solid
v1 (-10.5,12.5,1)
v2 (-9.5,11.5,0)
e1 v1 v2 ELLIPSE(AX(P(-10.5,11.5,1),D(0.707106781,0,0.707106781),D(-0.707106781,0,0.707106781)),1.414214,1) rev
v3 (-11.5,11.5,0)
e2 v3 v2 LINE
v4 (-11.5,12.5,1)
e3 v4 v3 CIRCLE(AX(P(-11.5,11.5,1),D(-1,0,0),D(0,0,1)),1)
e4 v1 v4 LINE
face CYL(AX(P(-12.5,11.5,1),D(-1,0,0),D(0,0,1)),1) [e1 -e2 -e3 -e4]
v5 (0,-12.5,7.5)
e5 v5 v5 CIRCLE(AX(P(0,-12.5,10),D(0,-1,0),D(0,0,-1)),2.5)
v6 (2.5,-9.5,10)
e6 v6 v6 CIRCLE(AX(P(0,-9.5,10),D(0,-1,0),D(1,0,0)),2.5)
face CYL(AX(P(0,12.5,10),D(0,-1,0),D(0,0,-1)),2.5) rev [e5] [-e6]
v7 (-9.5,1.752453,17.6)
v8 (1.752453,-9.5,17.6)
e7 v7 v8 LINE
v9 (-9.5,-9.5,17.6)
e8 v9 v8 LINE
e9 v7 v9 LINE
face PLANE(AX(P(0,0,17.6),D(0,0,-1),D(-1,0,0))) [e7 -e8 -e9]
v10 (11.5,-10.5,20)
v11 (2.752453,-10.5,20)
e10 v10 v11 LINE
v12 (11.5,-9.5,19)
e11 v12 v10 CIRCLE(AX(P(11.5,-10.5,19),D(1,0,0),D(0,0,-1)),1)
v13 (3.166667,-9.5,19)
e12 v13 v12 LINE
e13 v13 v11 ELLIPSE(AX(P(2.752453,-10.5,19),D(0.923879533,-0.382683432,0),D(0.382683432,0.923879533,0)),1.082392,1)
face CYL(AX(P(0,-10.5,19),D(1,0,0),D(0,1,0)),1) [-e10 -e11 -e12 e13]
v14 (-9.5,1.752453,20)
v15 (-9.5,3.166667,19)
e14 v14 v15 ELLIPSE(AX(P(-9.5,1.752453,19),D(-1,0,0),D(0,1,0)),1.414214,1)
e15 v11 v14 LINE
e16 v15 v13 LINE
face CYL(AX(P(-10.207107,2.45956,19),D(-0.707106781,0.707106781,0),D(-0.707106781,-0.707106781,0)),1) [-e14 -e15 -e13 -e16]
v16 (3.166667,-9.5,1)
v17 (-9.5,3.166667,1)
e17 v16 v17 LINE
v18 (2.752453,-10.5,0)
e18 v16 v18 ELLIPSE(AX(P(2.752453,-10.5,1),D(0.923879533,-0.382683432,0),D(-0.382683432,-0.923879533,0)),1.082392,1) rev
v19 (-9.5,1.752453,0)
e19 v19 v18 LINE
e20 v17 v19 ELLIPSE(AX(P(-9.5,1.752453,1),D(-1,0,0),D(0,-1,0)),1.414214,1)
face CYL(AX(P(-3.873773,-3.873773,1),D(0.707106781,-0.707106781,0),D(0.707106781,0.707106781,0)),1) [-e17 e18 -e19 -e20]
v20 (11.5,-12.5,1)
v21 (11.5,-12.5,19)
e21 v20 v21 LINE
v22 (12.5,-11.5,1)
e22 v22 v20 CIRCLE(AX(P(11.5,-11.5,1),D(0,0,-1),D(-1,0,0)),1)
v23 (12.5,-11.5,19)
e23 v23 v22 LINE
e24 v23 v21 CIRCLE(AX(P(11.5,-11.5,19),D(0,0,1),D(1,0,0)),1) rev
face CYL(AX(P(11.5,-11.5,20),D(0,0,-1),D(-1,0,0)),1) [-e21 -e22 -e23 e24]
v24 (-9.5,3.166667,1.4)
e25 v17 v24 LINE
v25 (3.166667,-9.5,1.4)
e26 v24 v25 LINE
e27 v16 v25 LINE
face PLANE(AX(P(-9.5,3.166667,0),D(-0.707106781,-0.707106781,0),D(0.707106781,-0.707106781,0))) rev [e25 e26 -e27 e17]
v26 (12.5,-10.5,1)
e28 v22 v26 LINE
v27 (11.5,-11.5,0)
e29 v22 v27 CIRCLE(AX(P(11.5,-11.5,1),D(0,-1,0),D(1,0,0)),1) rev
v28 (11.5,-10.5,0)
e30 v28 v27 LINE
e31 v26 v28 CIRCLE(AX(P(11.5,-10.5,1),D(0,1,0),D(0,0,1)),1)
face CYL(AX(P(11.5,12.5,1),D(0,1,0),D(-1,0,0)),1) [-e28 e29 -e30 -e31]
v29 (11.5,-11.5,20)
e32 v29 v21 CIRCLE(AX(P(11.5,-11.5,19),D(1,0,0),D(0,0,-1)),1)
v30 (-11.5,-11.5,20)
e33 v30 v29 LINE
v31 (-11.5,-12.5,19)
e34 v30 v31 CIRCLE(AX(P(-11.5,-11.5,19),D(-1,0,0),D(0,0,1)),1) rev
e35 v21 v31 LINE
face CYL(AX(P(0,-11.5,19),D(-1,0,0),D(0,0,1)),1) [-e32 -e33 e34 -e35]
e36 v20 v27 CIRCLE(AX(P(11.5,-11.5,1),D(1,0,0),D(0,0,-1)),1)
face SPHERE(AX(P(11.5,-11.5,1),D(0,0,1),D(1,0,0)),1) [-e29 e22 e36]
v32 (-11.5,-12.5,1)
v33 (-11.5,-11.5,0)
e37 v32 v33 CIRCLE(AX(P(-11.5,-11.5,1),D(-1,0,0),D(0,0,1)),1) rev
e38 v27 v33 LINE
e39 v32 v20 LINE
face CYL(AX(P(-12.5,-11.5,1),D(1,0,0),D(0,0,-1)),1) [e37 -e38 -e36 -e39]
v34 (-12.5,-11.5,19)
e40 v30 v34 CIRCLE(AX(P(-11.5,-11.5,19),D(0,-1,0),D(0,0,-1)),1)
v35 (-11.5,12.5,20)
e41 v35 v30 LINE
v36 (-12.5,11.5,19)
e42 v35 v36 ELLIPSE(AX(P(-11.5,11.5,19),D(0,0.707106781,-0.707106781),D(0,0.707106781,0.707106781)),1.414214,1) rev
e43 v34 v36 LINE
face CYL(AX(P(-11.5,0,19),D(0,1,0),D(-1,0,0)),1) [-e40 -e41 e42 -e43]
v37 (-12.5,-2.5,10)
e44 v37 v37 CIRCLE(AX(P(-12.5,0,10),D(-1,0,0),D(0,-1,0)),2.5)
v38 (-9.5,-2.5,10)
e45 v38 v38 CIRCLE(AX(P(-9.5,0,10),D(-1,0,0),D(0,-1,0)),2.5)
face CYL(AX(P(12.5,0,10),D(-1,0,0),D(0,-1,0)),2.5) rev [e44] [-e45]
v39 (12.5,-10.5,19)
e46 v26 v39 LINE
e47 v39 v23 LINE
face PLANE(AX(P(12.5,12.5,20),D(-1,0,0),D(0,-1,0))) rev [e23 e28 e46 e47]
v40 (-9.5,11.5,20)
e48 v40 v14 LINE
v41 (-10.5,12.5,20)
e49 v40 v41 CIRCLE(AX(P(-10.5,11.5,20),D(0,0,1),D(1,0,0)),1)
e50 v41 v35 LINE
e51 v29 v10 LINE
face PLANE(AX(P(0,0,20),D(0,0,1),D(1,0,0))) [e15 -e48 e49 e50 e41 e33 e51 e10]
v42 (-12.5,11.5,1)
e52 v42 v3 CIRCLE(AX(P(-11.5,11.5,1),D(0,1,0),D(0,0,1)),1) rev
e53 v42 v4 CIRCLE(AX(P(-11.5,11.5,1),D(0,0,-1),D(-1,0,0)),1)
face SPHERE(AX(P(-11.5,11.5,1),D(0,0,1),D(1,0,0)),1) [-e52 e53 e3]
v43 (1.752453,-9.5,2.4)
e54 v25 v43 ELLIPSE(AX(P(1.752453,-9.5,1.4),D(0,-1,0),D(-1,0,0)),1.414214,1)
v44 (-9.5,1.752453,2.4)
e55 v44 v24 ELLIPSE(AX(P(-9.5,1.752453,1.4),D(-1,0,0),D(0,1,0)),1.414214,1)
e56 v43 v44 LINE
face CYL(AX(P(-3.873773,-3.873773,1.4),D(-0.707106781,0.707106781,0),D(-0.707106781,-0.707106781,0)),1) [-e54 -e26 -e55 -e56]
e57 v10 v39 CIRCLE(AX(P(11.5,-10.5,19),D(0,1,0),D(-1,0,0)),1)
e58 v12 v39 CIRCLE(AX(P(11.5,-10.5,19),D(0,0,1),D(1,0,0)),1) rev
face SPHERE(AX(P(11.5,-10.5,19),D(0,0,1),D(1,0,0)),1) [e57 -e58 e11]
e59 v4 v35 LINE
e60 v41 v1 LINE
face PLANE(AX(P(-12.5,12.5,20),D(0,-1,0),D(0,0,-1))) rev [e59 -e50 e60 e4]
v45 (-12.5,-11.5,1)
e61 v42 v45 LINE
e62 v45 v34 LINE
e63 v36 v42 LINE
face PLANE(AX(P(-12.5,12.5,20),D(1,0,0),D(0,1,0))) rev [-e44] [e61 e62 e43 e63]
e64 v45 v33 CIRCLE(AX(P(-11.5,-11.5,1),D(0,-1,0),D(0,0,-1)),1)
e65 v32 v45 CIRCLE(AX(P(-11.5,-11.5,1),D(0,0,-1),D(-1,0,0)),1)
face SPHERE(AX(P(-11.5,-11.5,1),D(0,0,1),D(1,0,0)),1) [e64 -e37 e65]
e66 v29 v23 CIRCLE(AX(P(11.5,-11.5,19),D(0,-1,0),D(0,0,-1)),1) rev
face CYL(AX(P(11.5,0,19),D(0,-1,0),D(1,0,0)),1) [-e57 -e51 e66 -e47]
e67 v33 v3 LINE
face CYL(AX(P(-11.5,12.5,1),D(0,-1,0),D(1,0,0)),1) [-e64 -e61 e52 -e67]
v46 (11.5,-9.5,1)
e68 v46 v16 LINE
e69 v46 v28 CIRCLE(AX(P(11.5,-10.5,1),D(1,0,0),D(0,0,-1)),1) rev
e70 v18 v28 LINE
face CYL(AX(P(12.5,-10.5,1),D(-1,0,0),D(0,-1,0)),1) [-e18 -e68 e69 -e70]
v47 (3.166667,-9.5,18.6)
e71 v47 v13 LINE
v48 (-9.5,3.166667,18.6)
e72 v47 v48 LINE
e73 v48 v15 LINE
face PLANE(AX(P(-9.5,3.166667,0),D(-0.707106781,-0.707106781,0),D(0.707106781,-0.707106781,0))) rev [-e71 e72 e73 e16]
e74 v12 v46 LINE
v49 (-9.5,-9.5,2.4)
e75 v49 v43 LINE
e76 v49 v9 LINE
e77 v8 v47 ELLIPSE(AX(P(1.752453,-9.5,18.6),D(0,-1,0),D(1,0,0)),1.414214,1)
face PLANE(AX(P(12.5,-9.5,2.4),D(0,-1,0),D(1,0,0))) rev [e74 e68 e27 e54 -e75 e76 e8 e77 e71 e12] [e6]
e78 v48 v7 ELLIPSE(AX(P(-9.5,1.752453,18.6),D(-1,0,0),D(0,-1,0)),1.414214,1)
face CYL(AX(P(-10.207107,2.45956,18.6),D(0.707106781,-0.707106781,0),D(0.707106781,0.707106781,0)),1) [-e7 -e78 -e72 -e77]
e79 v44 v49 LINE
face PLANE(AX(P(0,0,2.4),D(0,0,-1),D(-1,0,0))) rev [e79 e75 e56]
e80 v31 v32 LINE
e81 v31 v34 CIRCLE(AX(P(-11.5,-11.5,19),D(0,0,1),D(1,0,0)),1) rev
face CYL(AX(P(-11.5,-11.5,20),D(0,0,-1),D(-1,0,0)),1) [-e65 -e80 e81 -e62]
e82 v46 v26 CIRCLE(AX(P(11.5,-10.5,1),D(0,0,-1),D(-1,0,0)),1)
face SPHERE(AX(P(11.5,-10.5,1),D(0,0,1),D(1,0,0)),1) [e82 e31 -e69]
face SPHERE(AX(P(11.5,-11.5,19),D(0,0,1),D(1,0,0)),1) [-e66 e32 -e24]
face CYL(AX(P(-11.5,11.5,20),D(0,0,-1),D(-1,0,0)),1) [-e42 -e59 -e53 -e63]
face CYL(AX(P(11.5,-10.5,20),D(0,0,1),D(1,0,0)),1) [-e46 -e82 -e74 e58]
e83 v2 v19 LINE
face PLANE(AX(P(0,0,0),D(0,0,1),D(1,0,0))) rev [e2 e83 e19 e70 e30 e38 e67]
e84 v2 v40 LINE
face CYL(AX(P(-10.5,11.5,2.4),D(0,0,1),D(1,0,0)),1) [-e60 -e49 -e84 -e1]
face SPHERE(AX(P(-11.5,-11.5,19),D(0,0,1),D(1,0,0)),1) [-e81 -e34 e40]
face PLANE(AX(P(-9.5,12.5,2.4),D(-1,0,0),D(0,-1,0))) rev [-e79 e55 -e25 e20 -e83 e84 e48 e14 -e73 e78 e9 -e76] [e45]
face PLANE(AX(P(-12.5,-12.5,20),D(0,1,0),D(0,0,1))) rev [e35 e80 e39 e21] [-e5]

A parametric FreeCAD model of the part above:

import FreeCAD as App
import Part
import Sketcher


def edges_at(feature, points):
    """Names of the edges that pass closest to the given points."""
    edges = feature.Shape.Edges
    near = lambda p: min(range(len(edges)), key=lambda i: edges[i].distToShape(Part.Vertex(*p))[0])
    return sorted({f"Edge{near(p) + 1}" for p in points})


def add_polygon(sketch, points):
    """Adds a closed chain of lines whose ends are joined by coincident constraints."""
    first, n = sketch.GeometryCount, len(points)
    for a, b in zip(points, points[1:] + points[:1]):
        sketch.addGeometry(Part.LineSegment(App.Vector(*a, 0), App.Vector(*b, 0)), False)
    for i in range(n):
        sketch.addConstraint(Sketcher.Constraint("Coincident", first + i, 2, first + (i + 1) % n, 1))

doc = App.newDocument("Part")
params = doc.addObject("Spreadsheet::Sheet", "Params")
for row, (alias, value) in enumerate([
    ("sketch1_width", "25 mm"),
    ("pad1_length", "20 mm"),
    ("sketch2_width", "22 mm"),
    ("pocket1_length", "15.2 mm"),
    ("sketch3_width", "22 mm"),
    ("fillet_radius", "1 mm"),
    ("sketch4_diameter", "5 mm"),
    ("sketch5_diameter", "5 mm"),
], start=1):
    params.set(f"A{row}", alias)
    params.set(f"B{row}", "=" + value)
    params.setAlias(f"B{row}", alias)

body = doc.addObject("PartDesign::Body", "Body")

# Sketch on XY plane
sketch1 = doc.addObject("Sketcher::SketchObject", "Sketch")
body.addObject(sketch1)
sketch1.AttachmentSupport = (doc.XY_Plane, [""])
sketch1.MapMode = "FlatFace"
add_polygon(sketch1, [(-12, 12), (-12, -12), (12, -12), (12, 12)])  # lines 0-3
sketch1.addConstraint([
    Sketcher.Constraint("Vertical", 0),
    Sketcher.Constraint("Horizontal", 1),
    Sketcher.Constraint("Vertical", 2),
    Sketcher.Constraint("Horizontal", 3),
    Sketcher.Constraint("Symmetric", 0, 2, 2, 2, -1, 1),
    Sketcher.Constraint("Equal", 3, 0),
    Sketcher.Constraint("DistanceX", 1, 1, 1, 2, 25.0),
])
sketch1.setExpression("Constraints[10]", "Params.sketch1_width")
pad1 = doc.addObject("PartDesign::Pad", "Pad")
body.addObject(pad1)
pad1.Profile = sketch1
pad1.setExpression("Length", "Params.pad1_length")

# Sketch on XY plane
sketch2 = doc.addObject("Sketcher::SketchObject", "Sketch001")
body.addObject(sketch2)
sketch2.AttachmentSupport = (doc.XY_Plane, [""])
sketch2.MapMode = "FlatFace"
sketch2.AttachmentOffset = App.Placement(App.Vector(0, 0, 17.6), App.Rotation())
add_polygon(sketch2, [(-10, 12), (-10, -10), (12, -10), (12, 12)])  # lines 0-3
sketch2.addConstraint([
    Sketcher.Constraint("Vertical", 0),
    Sketcher.Constraint("Horizontal", 1),
    Sketcher.Constraint("Vertical", 2),
    Sketcher.Constraint("Horizontal", 3),
    Sketcher.Constraint("Equal", 3, 0),
    Sketcher.Constraint("DistanceX", 1, 1, 1, 2, 22.0),
    Sketcher.Constraint("DistanceX", 0, 2, -1, 1, 9.5),
    Sketcher.Constraint("DistanceY", 0, 2, -1, 1, 9.5),
])
sketch2.setExpression("Constraints[9]", "Params.sketch2_width")
pocket1 = doc.addObject("PartDesign::Pocket", "Pocket")
body.addObject(pocket1)
pocket1.Profile = sketch2
pocket1.setExpression("Length", "Params.pocket1_length")

# Sketch on XY plane
sketch3 = doc.addObject("Sketcher::SketchObject", "Sketch002")
body.addObject(sketch3)
sketch3.AttachmentSupport = (doc.XY_Plane, [""])
sketch3.MapMode = "FlatFace"
sketch3.AttachmentOffset = App.Placement(App.Vector(0, 0, 20), App.Rotation())
add_polygon(sketch3, [(-10, 3), (3, -10), (12, -10), (12, 12), (-10, 12)])  # lines 0-4
sketch3.addConstraint([
    Sketcher.Constraint("Horizontal", 1),
    Sketcher.Constraint("Vertical", 2),
    Sketcher.Constraint("Horizontal", 3),
    Sketcher.Constraint("Vertical", 4),
    Sketcher.Constraint("Equal", 3, 2),
    Sketcher.Constraint("Equal", 1, 4),
    Sketcher.Constraint("DistanceX", 3, 2, 3, 1, 22.0),
    Sketcher.Constraint("DistanceY", 0, 2, -1, 1, 9.5),
    Sketcher.Constraint("DistanceX", -1, 1, 1, 2, 12.5),
    Sketcher.Constraint("Distance", 0, 17.913372),
])
sketch3.setExpression("Constraints[11]", "Params.sketch3_width")
pocket2 = doc.addObject("PartDesign::Pocket", "Pocket001")
body.addObject(pocket2)
pocket2.Profile = sketch3
pocket2.Type = "ThroughAll"
doc.recompute()

fillet = doc.addObject("PartDesign::Fillet", "Fillet")
body.addObject(fillet)
fillet.Base = (pocket2, edges_at(pocket2, [
    (-12.5, 0, 20),
    (0, -12.5, 20),
    (12.5, -9.5, 10),
    (-9.5, 12.5, 10),
    (-3.167, -3.167, 17.6),
    (-11, 12.5, 0),
    (-3.167, -3.167, 2.4),
    (-3.167, -3.167, 0),
    (7.833, -9.5, 20),
    (7.833, -9.5, 0),
    (-3.167, -3.167, 20),
    (12.5, -11, 20),
    (0, -12.5, 0),
    (-12.5, 0, 0),
    (12.5, -11, 0),
    (12.5, -12.5, 10),
    (-12.5, -12.5, 10),
    (-12.5, 12.5, 10),
]))
fillet.setExpression("Radius", "Params.fillet_radius")

# Sketch on XZ plane
sketch4 = doc.addObject("Sketcher::SketchObject", "Sketch003")
body.addObject(sketch4)
sketch4.AttachmentSupport = (doc.XZ_Plane, [""])
sketch4.MapMode = "FlatFace"
sketch4.AttachmentOffset = App.Placement(App.Vector(0, 0, 12.5), App.Rotation())
sketch4.addGeometry(Part.Circle(App.Vector(0, 10, 0), App.Vector(0, 0, 1), 2.5), False)
sketch4.addConstraint([
    Sketcher.Constraint("PointOnObject", 0, 3, -2),
    Sketcher.Constraint("Diameter", 0, 5.0),
    Sketcher.Constraint("DistanceY", -1, 1, 0, 3, 10.0),
])
sketch4.setExpression("Constraints[1]", "Params.sketch4_diameter")
pocket3 = doc.addObject("PartDesign::Pocket", "Pocket002")
body.addObject(pocket3)
pocket3.Profile = sketch4
pocket3.Type = "ThroughAll"

# Sketch on YZ plane
sketch5 = doc.addObject("Sketcher::SketchObject", "Sketch004")
body.addObject(sketch5)
sketch5.AttachmentSupport = (doc.YZ_Plane, [""])
sketch5.MapMode = "FlatFace"
sketch5.AttachmentOffset = App.Placement(App.Vector(0, 0, -12.5), App.Rotation())
sketch5.addGeometry(Part.Circle(App.Vector(0, 10, 0), App.Vector(0, 0, 1), 2.5), False)
sketch5.addConstraint([
    Sketcher.Constraint("PointOnObject", 0, 3, -2),
    Sketcher.Constraint("Diameter", 0, 5.0),
    Sketcher.Constraint("DistanceY", -1, 1, 0, 3, 10.0),
])
sketch5.setExpression("Constraints[1]", "Params.sketch5_diameter")
pocket4 = doc.addObject("PartDesign::Pocket", "Pocket003")
body.addObject(pocket4)
pocket4.Profile = sketch5
pocket4.Type = "ThroughAll"
pocket4.Reversed = True

doc.recompute()
